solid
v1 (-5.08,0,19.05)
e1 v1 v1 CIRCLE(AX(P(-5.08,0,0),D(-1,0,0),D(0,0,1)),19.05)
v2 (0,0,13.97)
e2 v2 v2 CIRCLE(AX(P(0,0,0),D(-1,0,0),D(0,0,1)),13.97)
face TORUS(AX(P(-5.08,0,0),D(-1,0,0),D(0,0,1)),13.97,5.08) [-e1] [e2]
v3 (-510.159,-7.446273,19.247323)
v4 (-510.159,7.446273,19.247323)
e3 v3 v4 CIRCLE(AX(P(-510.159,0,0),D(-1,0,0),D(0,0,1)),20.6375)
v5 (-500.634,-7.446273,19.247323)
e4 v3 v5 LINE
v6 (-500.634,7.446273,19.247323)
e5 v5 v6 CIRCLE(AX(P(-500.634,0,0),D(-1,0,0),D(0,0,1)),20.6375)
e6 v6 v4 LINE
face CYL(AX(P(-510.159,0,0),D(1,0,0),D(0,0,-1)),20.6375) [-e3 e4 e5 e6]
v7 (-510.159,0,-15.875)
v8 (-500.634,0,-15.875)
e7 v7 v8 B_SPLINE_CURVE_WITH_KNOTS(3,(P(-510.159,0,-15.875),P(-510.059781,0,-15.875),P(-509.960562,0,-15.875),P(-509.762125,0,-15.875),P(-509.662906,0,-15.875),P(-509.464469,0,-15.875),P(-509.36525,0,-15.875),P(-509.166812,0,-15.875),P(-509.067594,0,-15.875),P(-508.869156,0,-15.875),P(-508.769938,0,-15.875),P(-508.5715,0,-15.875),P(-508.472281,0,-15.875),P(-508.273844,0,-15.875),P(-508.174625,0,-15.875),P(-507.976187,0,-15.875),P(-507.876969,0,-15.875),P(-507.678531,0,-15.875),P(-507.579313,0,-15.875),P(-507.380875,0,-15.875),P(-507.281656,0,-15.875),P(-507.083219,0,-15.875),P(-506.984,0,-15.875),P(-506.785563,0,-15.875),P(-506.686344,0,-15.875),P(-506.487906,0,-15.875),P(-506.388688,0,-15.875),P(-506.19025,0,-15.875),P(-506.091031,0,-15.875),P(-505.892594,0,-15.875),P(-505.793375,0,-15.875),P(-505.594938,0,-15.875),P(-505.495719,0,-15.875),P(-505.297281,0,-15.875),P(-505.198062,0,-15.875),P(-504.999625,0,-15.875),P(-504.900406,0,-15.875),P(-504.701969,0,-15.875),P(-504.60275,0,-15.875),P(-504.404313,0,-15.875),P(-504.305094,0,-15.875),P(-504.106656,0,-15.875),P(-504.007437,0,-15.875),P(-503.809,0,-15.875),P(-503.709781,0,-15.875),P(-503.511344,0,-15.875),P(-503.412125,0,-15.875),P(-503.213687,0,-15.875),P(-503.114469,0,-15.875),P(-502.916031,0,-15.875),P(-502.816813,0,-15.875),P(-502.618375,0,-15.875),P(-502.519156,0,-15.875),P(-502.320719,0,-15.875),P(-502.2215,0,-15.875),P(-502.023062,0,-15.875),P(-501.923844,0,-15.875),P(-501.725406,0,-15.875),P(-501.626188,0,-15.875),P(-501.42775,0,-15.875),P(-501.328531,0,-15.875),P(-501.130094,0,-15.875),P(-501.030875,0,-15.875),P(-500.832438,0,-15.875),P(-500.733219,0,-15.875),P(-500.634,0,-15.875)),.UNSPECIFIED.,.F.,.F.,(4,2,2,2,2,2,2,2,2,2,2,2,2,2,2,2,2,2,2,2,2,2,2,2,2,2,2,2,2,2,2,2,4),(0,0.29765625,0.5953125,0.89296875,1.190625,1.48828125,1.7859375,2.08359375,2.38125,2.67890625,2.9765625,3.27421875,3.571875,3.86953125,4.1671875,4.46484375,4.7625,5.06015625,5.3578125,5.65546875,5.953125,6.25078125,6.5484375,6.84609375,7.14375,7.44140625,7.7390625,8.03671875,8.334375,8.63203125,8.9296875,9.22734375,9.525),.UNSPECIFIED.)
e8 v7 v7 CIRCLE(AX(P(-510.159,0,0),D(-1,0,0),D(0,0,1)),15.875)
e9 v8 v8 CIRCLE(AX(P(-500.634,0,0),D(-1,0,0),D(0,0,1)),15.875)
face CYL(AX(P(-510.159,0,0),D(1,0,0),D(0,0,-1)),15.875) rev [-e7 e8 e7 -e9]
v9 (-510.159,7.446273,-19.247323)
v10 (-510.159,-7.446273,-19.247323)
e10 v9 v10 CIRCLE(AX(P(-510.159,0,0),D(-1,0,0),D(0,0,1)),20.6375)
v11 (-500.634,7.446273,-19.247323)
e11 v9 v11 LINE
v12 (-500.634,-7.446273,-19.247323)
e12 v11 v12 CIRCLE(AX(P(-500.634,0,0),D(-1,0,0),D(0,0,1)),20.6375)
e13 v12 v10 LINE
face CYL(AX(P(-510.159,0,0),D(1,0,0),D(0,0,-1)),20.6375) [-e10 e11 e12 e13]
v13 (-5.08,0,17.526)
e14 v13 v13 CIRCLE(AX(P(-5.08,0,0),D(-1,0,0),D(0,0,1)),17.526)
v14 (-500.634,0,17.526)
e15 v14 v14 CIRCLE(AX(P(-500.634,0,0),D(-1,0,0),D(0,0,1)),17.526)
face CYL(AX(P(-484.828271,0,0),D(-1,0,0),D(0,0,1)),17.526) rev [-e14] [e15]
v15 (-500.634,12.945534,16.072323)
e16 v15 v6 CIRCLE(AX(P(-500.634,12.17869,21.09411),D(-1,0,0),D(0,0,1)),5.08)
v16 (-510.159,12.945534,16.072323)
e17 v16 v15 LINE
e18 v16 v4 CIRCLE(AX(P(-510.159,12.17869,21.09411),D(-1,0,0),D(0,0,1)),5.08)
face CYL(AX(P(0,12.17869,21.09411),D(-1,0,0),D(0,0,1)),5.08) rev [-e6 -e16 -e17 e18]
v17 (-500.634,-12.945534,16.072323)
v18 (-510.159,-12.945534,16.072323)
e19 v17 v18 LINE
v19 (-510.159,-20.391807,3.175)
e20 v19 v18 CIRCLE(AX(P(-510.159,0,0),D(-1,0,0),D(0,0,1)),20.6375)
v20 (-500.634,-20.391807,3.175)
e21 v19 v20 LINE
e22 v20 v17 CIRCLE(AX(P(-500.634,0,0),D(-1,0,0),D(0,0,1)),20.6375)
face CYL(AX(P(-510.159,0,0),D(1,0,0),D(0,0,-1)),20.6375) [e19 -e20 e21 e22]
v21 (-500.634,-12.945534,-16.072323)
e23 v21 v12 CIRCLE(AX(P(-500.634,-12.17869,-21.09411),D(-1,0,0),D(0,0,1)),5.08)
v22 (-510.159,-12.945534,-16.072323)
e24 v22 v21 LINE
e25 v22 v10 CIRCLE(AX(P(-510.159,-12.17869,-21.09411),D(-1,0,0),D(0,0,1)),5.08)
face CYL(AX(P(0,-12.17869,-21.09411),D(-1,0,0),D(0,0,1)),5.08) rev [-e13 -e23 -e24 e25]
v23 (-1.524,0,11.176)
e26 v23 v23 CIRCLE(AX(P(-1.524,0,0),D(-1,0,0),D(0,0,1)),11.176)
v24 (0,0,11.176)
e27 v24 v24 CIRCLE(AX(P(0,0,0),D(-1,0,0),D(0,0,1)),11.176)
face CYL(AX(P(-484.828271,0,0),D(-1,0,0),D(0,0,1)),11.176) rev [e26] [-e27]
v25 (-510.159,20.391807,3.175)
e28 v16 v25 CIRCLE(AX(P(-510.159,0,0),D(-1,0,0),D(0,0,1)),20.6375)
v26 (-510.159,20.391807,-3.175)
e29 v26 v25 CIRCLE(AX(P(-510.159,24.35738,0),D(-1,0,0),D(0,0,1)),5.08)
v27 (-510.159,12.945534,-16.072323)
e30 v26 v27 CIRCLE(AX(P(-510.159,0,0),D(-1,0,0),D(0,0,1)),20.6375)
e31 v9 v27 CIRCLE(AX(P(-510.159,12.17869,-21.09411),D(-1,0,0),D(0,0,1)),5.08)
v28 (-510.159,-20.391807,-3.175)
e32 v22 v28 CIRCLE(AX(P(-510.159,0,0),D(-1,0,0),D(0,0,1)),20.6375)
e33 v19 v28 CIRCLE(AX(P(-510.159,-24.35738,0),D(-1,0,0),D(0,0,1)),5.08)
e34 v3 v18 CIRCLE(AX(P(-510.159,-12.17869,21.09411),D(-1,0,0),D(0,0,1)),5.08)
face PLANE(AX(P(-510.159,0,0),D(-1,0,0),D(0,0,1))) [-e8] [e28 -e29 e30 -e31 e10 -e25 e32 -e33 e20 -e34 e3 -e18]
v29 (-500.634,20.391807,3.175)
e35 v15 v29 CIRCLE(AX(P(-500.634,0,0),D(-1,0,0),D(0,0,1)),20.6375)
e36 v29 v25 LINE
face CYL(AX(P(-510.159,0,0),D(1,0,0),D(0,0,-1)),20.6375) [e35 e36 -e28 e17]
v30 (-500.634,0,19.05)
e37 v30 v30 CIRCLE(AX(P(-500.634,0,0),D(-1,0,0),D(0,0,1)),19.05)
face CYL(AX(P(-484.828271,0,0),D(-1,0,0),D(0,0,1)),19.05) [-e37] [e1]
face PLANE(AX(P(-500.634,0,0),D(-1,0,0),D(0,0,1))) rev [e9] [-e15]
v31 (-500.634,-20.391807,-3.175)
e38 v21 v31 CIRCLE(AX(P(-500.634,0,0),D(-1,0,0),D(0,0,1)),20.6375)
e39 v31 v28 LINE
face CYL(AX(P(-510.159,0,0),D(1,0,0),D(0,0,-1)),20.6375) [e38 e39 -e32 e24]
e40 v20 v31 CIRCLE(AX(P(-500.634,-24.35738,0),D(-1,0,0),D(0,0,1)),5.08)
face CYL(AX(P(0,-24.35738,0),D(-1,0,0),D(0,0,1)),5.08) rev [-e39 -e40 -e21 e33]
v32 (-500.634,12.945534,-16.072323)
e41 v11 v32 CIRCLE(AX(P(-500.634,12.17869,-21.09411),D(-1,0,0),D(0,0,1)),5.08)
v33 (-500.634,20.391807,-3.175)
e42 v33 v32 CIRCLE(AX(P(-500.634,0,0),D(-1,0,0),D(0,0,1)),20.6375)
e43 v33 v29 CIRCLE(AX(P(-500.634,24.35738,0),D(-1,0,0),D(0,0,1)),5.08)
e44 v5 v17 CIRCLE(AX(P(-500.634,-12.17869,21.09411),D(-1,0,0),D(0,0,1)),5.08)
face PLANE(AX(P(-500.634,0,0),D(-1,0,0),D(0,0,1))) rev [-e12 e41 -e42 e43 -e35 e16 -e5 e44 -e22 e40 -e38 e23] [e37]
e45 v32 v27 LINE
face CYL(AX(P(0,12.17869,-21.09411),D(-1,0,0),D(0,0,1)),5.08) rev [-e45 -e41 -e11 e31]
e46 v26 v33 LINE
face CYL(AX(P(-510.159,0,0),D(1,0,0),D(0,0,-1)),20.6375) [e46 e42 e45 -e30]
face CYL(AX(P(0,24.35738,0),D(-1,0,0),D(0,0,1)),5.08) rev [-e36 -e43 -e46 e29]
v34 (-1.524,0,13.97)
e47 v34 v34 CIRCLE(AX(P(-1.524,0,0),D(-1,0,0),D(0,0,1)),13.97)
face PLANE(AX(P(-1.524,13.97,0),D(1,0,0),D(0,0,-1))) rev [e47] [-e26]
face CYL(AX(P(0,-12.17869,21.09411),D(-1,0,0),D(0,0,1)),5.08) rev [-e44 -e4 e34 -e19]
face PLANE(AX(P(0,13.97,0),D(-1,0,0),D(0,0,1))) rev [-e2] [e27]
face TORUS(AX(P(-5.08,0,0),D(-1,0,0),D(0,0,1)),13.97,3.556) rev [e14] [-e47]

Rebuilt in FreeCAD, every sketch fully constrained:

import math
import FreeCAD as App
import Part
import Sketcher
from FreeCAD import Vector
Q = App.Units.Quantity

doc = App.newDocument("Part")
body = doc.addObject("PartDesign::Body", "Body")

sketch1 = doc.addObject("Sketcher::SketchObject", "Sketch")
body.addObject(sketch1)
sketch1.AttachmentSupport = (doc.XY_Plane, [""])
sketch1.MapMode = "FlatFace"
sketch1.addGeometry(Part.LineSegment(Vector(-500.634, 17.526, 0), Vector(-5.08, 17.526, 0)), False)
sketch1.addGeometry(Part.ArcOfCircle(Part.Circle(Vector(-5.08, 13.97, 0), Vector(0, 0, 1), 3.556), math.radians(0), math.radians(90)), False)
sketch1.addGeometry(Part.LineSegment(Vector(-1.524, 13.97, 0), Vector(-1.524, 11.176, 0)), False)
sketch1.addGeometry(Part.LineSegment(Vector(-1.524, 11.176, 0), Vector(0, 11.176, 0)), False)
sketch1.addGeometry(Part.LineSegment(Vector(0, 11.176, 0), Vector(0, 13.97, 0)), False)
sketch1.addGeometry(Part.ArcOfCircle(Part.Circle(Vector(-5.08, 13.97, 0), Vector(0, 0, 1), 5.08), math.radians(0), math.radians(90)), False)
sketch1.addGeometry(Part.LineSegment(Vector(-5.08, 19.05, 0), Vector(-500.634, 19.05, 0)), False)
sketch1.addGeometry(Part.LineSegment(Vector(-500.634, 19.05, 0), Vector(-500.634, 17.526, 0)), False)
sketch1.addConstraint(Sketcher.Constraint("Tangent", 0, 2, 1, 2))
sketch1.addConstraint(Sketcher.Constraint("Tangent", 1, 1, 2, 1))
sketch1.addConstraint(Sketcher.Constraint("Coincident", 2, 2, 3, 1))
sketch1.addConstraint(Sketcher.Constraint("Coincident", 3, 2, 4, 1))
sketch1.addConstraint(Sketcher.Constraint("Tangent", 4, 2, 5, 1))
sketch1.addConstraint(Sketcher.Constraint("Tangent", 5, 2, 6, 1))
sketch1.addConstraint(Sketcher.Constraint("Coincident", 6, 2, 7, 1))
sketch1.addConstraint(Sketcher.Constraint("Coincident", 7, 2, 0, 1))
sketch1.addConstraint(Sketcher.Constraint("Horizontal", 0))
sketch1.addConstraint(Sketcher.Constraint("Vertical", 2))
sketch1.addConstraint(Sketcher.Constraint("Horizontal", 3))
sketch1.addConstraint(Sketcher.Constraint("Vertical", 4))
sketch1.addConstraint(Sketcher.Constraint("Horizontal", 6))
sketch1.addConstraint(Sketcher.Constraint("Vertical", 7))
sketch1.addConstraint(Sketcher.Constraint("Coincident", 5, 3, 1, 3))
sketch1.addConstraint(Sketcher.Constraint("PointOnObject", 3, 2, -2))
sketch1.addConstraint(Sketcher.Constraint("Radius", 5, Q("0.2 in")))
sketch1.addConstraint(Sketcher.Constraint("Radius", 1, Q("0.14 in")))
sketch1.addConstraint(Sketcher.Constraint("DistanceX", 0, 1, 0, 2, Q("19.51 in")))
sketch1.addConstraint(Sketcher.Constraint("DistanceY", 2, 2, 2, 1, Q("0.11 in")))
sketch1.addConstraint(Sketcher.Constraint("DistanceY", -1, 1, 1, 3, Q("0.55 in")))
revolution = doc.addObject("PartDesign::Revolution", "Revolution")
body.addObject(revolution)
revolution.Profile = sketch1
revolution.ReferenceAxis = (sketch1, ["H_Axis"])
revolution.Angle = 360

sketch2 = doc.addObject("Sketcher::SketchObject", "Sketch001")
body.addObject(sketch2)
sketch2.AttachmentSupport = (doc.YZ_Plane, [""])
sketch2.MapMode = "FlatFace"
sketch2.AttachmentOffset = App.Placement(Vector(0, 0, -19.71 * 25.4), App.Rotation())
sketch2.addGeometry(Part.Circle(Vector(0, 0, 0), Vector(0, 0, 1), 20.6375), False)
sketch2.addGeometry(Part.Circle(Vector(0, 0, 0), Vector(0, 0, 1), 15.875), False)
sketch2.addConstraint(Sketcher.Constraint("Coincident", 0, 3, -1, 1))
sketch2.addConstraint(Sketcher.Constraint("Coincident", 1, 3, -1, 1))
sketch2.addConstraint(Sketcher.Constraint("Diameter", 1, Q("1.25 in")))
sketch2.addConstraint(Sketcher.Constraint("Diameter", 0, Q("1.625 in")))
pad1 = doc.addObject("PartDesign::Pad", "Pad")
body.addObject(pad1)
pad1.Profile = sketch2
pad1.Length = Q("0.375 in")
pad1.Reversed = True

sketch3 = doc.addObject("Sketcher::SketchObject", "Sketch002")
body.addObject(sketch3)
sketch3.AttachmentSupport = (doc.YZ_Plane, [""])
sketch3.MapMode = "FlatFace"
sketch3.AttachmentOffset = App.Placement(Vector(0, 0, -20.085 * 25.4), App.Rotation())
sketch3.addGeometry(Part.ArcOfCircle(Part.Circle(Vector(0, 0, 0), Vector(0, 0, 1), 20.6375), math.radians(-8.849883), math.radians(8.849883)), False)
sketch3.addGeometry(Part.ArcOfCircle(Part.Circle(Vector(24.35738, 0, 0), Vector(0, 0, 1), 5.08), math.radians(141.317813), math.radians(218.682187)), False)
sketch3.addGeometry(Part.ArcOfCircle(Part.Circle(Vector(0, 0, 0), Vector(0, 0, 1), 20.6375), math.radians(51.150117), math.radians(68.849883)), False)
sketch3.addGeometry(Part.ArcOfCircle(Part.Circle(Vector(12.17869, 21.09411, 0), Vector(0, 0, 1), 5.08), math.radians(-158.682187), math.radians(-81.317813)), False)
sketch3.addGeometry(Part.ArcOfCircle(Part.Circle(Vector(0, 0, 0), Vector(0, 0, 1), 20.6375), math.radians(111.150117), math.radians(128.849883)), False)
sketch3.addGeometry(Part.ArcOfCircle(Part.Circle(Vector(-12.17869, 21.09411, 0), Vector(0, 0, 1), 5.08), math.radians(-98.682187), math.radians(-21.317813)), False)
sketch3.addGeometry(Part.ArcOfCircle(Part.Circle(Vector(0, 0, 0), Vector(0, 0, 1), 20.6375), math.radians(171.150117), math.radians(188.849883)), False)
sketch3.addGeometry(Part.ArcOfCircle(Part.Circle(Vector(-24.35738, 0, 0), Vector(0, 0, 1), 5.08), math.radians(-38.682187), math.radians(38.682187)), False)
sketch3.addGeometry(Part.ArcOfCircle(Part.Circle(Vector(0, 0, 0), Vector(0, 0, 1), 20.6375), math.radians(-128.849883), math.radians(-111.150117)), False)
sketch3.addGeometry(Part.ArcOfCircle(Part.Circle(Vector(-12.17869, -21.09411, 0), Vector(0, 0, 1), 5.08), math.radians(21.317813), math.radians(98.682187)), False)
sketch3.addGeometry(Part.ArcOfCircle(Part.Circle(Vector(0, 0, 0), Vector(0, 0, 1), 20.6375), math.radians(-68.849883), math.radians(-51.150117)), False)
sketch3.addGeometry(Part.ArcOfCircle(Part.Circle(Vector(12.17869, -21.09411, 0), Vector(0, 0, 1), 5.08), math.radians(81.317813), math.radians(158.682187)), False)
sketch3.addConstraint(Sketcher.Constraint("Coincident", 0, 1, 1, 2))
sketch3.addConstraint(Sketcher.Constraint("Coincident", 1, 1, 0, 2))
sketch3.addConstraint(Sketcher.Constraint("Coincident", 2, 1, 3, 2))
sketch3.addConstraint(Sketcher.Constraint("Coincident", 3, 1, 2, 2))
sketch3.addConstraint(Sketcher.Constraint("Coincident", 4, 1, 5, 2))
sketch3.addConstraint(Sketcher.Constraint("Coincident", 5, 1, 4, 2))
sketch3.addConstraint(Sketcher.Constraint("Coincident", 6, 1, 7, 2))
sketch3.addConstraint(Sketcher.Constraint("Coincident", 7, 1, 6, 2))
sketch3.addConstraint(Sketcher.Constraint("Coincident", 8, 1, 9, 2))
sketch3.addConstraint(Sketcher.Constraint("Coincident", 9, 1, 8, 2))
sketch3.addConstraint(Sketcher.Constraint("Coincident", 10, 1, 11, 2))
sketch3.addConstraint(Sketcher.Constraint("Coincident", 11, 1, 10, 2))
sketch3.addConstraint(Sketcher.Constraint("Coincident", 0, 3, -1, 1))
sketch3.addConstraint(Sketcher.Constraint("Coincident", 2, 3, -1, 1))
sketch3.addConstraint(Sketcher.Constraint("Coincident", 4, 3, -1, 1))
sketch3.addConstraint(Sketcher.Constraint("Coincident", 6, 3, -1, 1))
sketch3.addConstraint(Sketcher.Constraint("Coincident", 8, 3, -1, 1))
sketch3.addConstraint(Sketcher.Constraint("Coincident", 10, 3, -1, 1))
sketch3.addConstraint(Sketcher.Constraint("Equal", 0, 2))
sketch3.addConstraint(Sketcher.Constraint("Equal", 1, 3))
sketch3.addConstraint(Sketcher.Constraint("Equal", 2, 4))
sketch3.addConstraint(Sketcher.Constraint("Equal", 3, 5))
sketch3.addConstraint(Sketcher.Constraint("Equal", 4, 6))
sketch3.addConstraint(Sketcher.Constraint("Equal", 5, 7))
sketch3.addConstraint(Sketcher.Constraint("Equal", 6, 8))
sketch3.addConstraint(Sketcher.Constraint("Equal", 7, 9))
sketch3.addConstraint(Sketcher.Constraint("Equal", 8, 10))
sketch3.addConstraint(Sketcher.Constraint("Equal", 9, 11))
sketch3.addConstraint(Sketcher.Constraint("Symmetric", 1, 3, 7, 3, -1, 1))
sketch3.addConstraint(Sketcher.Constraint("Symmetric", 3, 3, 9, 3, -1, 1))
sketch3.addConstraint(Sketcher.Constraint("Symmetric", 5, 3, 11, 3, -1, 1))
sketch3.addConstraint(Sketcher.Constraint("Symmetric", 3, 3, 5, 3, -2))
sketch3.addConstraint(Sketcher.Constraint("PointOnObject", 1, 3, -1))
sketch3.addConstraint(Sketcher.Constraint("Radius", 1, Q("0.2 in")))
sketch3.addConstraint(Sketcher.Constraint("Radius", 0, Q("0.8125 in")))
sketch3.addConstraint(Sketcher.Constraint("DistanceY", 0, 1, 1, 1, Q("0.25 in")))
sketch3.addConstraint(Sketcher.Constraint("DistanceY", 2, 1, 3, 1, Q("0.125 in")))
sketch3.addConstraint(Sketcher.Constraint("DistanceX", -1, 1, 3, 3, Q("12.17869 mm")))
pocket1 = doc.addObject("PartDesign::Pocket", "Pocket")
body.addObject(pocket1)
pocket1.Profile = sketch3
pocket1.Type = "ThroughAll"
pocket1.Midplane = True

doc.recompute()
